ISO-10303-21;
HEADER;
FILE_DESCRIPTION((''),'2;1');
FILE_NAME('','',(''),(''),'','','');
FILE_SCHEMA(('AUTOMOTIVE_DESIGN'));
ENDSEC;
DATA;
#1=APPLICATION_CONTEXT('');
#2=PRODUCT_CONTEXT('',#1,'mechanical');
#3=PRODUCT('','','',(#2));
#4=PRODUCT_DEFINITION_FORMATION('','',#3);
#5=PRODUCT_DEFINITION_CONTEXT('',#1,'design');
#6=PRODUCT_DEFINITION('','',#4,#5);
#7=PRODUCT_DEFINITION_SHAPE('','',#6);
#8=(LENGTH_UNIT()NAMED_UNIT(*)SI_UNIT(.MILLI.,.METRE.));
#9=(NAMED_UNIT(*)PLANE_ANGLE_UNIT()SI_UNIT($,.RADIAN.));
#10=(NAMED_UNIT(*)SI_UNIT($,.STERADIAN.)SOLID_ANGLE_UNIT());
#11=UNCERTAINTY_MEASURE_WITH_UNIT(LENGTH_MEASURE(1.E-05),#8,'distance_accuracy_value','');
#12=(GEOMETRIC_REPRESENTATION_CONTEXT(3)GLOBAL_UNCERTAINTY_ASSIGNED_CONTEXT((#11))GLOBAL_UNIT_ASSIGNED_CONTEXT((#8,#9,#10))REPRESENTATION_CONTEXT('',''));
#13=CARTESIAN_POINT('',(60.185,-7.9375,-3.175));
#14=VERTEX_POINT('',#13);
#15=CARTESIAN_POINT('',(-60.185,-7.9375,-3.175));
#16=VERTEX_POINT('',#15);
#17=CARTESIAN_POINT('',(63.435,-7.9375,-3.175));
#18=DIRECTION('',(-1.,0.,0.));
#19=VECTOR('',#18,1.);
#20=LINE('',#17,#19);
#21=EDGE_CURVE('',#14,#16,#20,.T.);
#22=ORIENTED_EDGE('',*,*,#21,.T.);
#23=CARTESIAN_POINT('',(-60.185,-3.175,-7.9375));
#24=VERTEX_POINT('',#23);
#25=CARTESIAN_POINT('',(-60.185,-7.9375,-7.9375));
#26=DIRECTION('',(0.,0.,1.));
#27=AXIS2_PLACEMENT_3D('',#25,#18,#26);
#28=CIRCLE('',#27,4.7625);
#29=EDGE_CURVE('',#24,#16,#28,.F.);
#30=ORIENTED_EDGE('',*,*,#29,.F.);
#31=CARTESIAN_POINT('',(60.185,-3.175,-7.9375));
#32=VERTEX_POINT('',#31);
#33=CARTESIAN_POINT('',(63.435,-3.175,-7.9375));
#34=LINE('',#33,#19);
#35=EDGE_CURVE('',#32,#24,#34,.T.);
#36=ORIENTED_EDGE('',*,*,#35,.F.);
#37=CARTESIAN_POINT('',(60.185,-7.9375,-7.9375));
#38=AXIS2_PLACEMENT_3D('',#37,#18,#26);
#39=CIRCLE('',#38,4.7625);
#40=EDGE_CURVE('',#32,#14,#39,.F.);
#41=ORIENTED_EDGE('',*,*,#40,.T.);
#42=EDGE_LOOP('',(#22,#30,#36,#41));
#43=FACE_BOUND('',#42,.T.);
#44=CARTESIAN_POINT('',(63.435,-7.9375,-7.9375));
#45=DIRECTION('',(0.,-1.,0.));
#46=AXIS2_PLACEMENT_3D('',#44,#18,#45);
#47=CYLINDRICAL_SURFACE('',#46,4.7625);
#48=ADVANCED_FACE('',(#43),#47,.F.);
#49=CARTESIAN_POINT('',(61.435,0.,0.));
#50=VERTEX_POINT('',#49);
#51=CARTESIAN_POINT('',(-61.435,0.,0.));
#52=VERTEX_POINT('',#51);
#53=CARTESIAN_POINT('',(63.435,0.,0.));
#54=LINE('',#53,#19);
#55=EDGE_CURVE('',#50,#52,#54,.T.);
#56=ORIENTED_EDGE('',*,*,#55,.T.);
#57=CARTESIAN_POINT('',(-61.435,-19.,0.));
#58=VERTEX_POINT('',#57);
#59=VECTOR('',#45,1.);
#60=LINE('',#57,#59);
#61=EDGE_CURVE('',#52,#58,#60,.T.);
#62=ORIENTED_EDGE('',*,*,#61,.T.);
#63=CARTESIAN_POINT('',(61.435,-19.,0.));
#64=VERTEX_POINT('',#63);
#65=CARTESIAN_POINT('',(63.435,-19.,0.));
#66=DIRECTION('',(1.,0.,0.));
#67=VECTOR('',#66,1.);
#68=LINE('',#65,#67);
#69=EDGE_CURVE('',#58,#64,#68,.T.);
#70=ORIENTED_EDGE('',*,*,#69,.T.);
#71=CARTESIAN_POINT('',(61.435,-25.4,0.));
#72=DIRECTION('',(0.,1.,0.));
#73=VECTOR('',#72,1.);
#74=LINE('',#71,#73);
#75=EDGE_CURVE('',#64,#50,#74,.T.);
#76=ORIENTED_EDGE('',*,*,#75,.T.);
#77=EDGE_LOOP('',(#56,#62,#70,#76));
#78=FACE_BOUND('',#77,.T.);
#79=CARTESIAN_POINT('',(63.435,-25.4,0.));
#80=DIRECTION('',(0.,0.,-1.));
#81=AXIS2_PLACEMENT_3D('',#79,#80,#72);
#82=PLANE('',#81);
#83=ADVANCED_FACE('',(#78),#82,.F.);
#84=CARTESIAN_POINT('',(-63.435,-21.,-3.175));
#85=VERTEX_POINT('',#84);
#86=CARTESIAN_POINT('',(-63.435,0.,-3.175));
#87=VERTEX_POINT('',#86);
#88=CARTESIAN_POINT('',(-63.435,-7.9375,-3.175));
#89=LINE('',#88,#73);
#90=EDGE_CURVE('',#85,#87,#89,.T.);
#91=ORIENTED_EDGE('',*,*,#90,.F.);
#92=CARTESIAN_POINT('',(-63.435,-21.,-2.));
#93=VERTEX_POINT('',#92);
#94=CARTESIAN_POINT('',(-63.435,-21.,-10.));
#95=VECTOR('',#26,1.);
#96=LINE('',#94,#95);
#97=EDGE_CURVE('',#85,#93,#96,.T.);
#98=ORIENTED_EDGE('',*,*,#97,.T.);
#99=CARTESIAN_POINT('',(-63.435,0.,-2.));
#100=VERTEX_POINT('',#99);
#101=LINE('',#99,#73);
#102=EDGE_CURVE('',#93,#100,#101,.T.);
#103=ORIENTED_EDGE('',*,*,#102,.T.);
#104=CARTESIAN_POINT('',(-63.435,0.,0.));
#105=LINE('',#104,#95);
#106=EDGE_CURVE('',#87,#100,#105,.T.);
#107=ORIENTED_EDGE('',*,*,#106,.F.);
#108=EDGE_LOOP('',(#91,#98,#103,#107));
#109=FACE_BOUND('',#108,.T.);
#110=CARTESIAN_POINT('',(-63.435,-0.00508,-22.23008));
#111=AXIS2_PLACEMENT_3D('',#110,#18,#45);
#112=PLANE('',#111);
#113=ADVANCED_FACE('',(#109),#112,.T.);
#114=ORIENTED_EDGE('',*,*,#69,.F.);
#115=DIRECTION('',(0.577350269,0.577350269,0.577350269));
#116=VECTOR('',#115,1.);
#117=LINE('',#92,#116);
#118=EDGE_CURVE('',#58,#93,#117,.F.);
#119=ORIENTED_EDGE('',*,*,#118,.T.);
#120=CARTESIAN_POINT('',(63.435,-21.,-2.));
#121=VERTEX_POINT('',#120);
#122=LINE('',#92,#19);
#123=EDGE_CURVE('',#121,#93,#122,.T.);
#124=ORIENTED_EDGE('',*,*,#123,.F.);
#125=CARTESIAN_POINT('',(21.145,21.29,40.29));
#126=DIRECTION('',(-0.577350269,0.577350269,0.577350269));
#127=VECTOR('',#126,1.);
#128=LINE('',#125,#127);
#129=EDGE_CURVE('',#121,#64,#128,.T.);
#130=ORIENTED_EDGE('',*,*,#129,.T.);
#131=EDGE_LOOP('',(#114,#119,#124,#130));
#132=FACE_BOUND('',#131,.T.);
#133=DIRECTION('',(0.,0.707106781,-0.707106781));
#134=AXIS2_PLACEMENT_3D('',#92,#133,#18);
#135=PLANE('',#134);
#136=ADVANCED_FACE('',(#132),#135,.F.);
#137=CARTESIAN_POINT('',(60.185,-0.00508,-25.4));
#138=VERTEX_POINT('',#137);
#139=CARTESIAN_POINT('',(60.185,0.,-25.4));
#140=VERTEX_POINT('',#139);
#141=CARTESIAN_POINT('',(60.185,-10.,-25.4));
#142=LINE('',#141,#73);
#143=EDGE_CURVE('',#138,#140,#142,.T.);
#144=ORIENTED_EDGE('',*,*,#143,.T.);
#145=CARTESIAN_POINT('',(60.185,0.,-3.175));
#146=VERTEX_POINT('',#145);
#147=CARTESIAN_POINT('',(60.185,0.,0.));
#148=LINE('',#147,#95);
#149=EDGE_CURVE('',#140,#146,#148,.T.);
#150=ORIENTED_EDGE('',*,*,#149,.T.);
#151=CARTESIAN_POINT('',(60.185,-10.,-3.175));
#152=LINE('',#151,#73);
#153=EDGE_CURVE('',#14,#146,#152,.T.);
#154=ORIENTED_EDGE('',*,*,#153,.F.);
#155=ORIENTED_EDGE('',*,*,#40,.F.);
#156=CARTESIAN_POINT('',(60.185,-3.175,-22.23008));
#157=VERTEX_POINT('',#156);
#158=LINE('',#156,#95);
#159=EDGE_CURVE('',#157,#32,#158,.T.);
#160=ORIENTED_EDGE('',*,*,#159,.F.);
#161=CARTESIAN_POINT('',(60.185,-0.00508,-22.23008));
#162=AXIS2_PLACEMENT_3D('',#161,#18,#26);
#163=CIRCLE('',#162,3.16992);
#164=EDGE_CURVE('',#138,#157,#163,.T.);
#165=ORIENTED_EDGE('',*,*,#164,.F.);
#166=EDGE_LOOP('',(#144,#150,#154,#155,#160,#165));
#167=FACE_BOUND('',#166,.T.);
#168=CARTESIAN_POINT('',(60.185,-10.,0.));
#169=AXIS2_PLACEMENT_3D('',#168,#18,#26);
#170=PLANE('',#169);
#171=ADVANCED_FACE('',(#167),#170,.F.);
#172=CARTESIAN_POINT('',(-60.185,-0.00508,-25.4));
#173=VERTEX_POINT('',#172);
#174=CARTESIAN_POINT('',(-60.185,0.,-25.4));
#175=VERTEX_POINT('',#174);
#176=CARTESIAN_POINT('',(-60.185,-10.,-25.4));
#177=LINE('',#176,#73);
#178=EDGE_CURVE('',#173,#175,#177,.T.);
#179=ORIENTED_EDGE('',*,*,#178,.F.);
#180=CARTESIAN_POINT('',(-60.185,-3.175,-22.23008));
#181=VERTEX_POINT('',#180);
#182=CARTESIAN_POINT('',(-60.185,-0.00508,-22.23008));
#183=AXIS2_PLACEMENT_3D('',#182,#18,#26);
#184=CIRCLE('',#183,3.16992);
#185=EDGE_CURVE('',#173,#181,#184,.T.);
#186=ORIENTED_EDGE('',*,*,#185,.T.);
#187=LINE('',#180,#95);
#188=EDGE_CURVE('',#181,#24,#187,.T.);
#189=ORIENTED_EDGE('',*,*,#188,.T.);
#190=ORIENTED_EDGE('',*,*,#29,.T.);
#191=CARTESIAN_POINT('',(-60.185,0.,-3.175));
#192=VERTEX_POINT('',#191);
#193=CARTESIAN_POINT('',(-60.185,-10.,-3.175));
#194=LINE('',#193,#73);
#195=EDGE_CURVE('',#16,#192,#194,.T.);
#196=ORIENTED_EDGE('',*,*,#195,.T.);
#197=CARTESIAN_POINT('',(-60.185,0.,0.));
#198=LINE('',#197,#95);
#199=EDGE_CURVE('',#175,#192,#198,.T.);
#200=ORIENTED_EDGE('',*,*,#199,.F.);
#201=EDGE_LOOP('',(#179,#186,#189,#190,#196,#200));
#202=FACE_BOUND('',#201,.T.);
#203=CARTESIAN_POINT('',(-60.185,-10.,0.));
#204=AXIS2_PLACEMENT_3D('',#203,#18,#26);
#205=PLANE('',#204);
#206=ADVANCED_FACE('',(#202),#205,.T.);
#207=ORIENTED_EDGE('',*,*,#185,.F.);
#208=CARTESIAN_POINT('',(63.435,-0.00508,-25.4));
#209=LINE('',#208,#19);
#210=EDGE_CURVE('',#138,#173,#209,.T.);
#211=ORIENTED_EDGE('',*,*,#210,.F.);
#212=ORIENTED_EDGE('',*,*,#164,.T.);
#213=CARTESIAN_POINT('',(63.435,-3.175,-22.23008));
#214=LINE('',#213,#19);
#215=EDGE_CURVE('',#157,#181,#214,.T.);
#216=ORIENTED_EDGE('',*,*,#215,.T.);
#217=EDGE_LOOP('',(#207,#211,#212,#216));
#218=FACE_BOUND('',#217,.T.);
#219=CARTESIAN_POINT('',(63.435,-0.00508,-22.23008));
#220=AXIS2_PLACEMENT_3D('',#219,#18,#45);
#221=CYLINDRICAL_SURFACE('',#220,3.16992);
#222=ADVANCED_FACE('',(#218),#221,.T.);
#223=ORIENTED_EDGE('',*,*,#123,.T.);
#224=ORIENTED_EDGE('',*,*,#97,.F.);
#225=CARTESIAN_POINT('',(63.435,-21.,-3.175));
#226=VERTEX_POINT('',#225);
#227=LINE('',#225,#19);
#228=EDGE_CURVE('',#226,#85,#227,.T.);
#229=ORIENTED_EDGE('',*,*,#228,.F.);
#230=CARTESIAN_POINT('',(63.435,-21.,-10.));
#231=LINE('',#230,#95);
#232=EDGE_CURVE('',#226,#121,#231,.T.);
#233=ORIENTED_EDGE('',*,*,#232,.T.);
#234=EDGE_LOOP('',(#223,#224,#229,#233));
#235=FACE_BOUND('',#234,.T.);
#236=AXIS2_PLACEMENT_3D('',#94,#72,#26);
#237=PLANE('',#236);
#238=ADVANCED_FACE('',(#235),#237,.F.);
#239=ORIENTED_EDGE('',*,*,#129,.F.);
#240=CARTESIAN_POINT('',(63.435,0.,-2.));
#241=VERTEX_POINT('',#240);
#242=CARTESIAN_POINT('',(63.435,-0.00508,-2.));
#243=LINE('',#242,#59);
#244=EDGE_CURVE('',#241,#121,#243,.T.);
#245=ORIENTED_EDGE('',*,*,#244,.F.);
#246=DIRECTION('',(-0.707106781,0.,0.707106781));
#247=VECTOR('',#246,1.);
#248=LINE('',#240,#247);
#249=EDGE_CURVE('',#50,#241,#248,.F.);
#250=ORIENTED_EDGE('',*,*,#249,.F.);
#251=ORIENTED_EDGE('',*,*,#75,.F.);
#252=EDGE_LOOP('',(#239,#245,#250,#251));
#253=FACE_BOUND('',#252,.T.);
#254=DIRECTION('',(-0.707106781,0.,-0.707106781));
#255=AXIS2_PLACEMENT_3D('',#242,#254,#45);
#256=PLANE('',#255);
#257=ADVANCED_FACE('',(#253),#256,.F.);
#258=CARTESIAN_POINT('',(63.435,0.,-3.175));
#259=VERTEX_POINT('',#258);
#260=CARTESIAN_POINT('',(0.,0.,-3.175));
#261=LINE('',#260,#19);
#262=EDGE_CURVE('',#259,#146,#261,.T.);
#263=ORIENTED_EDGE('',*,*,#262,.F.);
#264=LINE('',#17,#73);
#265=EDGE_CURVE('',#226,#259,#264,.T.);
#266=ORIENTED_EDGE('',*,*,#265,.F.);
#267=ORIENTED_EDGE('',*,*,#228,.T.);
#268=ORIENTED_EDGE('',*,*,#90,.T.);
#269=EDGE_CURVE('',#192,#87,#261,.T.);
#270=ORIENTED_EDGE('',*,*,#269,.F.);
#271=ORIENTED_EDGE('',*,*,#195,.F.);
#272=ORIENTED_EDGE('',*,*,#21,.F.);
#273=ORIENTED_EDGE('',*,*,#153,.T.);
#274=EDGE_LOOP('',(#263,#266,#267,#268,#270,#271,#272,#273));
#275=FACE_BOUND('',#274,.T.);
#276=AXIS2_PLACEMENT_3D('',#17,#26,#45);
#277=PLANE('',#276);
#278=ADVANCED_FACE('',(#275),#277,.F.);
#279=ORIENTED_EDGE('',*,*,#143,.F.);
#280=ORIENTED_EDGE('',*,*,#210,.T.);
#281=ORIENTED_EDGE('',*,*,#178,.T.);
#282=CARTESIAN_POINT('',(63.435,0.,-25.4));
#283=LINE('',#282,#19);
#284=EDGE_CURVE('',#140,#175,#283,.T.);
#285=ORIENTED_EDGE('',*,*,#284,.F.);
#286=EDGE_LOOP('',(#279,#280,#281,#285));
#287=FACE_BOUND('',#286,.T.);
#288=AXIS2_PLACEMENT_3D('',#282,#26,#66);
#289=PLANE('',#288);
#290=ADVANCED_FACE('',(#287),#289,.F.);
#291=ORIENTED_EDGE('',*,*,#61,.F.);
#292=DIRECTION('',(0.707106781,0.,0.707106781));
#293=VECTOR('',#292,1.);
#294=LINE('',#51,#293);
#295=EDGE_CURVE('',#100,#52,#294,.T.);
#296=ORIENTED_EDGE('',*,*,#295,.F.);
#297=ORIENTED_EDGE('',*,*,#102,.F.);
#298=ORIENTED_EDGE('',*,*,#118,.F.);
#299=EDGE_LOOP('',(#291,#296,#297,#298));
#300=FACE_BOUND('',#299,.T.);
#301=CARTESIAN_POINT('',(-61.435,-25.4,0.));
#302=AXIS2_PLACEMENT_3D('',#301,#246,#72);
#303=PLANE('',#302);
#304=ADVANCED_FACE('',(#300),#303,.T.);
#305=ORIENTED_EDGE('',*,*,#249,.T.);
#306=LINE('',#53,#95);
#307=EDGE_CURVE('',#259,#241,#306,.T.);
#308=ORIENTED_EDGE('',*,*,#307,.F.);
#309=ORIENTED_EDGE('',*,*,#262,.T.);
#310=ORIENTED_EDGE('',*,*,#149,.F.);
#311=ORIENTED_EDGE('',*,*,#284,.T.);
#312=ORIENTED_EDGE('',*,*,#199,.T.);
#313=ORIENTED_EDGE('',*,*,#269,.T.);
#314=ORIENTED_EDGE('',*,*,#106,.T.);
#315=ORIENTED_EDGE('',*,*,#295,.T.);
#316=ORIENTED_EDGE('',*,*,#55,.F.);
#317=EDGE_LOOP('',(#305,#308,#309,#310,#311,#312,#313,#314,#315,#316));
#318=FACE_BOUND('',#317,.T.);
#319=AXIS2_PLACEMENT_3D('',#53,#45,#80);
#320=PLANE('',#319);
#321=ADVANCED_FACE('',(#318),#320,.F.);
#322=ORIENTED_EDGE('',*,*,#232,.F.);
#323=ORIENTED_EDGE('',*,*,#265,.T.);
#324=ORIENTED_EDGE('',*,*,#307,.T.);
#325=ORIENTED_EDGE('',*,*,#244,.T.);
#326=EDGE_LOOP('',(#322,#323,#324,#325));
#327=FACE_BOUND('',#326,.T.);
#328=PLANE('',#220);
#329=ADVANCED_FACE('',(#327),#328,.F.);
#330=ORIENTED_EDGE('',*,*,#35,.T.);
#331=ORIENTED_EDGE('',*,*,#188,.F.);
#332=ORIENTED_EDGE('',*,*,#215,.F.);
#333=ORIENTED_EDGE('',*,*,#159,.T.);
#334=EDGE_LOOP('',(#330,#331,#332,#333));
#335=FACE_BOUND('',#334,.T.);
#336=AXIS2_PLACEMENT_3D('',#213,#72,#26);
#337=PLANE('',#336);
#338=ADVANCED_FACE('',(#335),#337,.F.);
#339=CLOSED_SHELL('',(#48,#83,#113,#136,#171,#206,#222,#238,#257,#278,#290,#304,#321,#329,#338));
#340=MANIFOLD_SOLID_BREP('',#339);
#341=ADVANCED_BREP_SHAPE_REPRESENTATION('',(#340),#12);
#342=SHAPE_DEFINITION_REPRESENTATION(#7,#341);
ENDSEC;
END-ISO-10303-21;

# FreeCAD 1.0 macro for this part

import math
import FreeCAD as App
import Part
import Sketcher
Q = App.Units.Quantity


def edges_at(feature, points):
    """Names of the edges that pass closest to the given points."""
    edges = feature.Shape.Edges
    near = lambda p: min(range(len(edges)), key=lambda i: edges[i].distToShape(Part.Vertex(*p))[0])
    return sorted({f"Edge{near(p) + 1}" for p in points})

doc = App.newDocument("Part")
params = doc.addObject("Spreadsheet::Sheet", "Params")
for row, (alias, value) in enumerate([
    ("sketch1_width", "25.4 mm"),
    ("pad1_length", "126.87 mm"),
    ("sketch2_width", "3.25 mm"),
    ("pocket1_length", "10 mm"),
    ("sketch3_height", "4.4 mm"),
    ("sketch3_width", "126.87 mm"),
    ("pocket2_length", "10 mm"),
    ("chamfer_size", "2 mm"),
    ("chamfer2_size", "2 mm"),
], start=1):
    params.set(f"A{row}", alias)
    params.set(f"B{row}", "=" + value)
    params.setAlias(f"B{row}", alias)

body = doc.addObject("PartDesign::Body", "Body")

# Sketch on YZ plane
sketch1 = body.newObject("Sketcher::SketchObject", "Sketch")
sketch1.AttachmentSupport = (doc.getObject("YZ_Plane"), [""])
sketch1.MapMode = "FlatFace"
sketch1.AttachmentOffset = App.Placement(App.Vector(0, 0, -63.435), App.Rotation())
sketch1.addGeometry([
    Part.LineSegment(App.Vector(0, -25.4, 0), App.Vector(0, 0, 0)),  # 0
    Part.LineSegment(App.Vector(0, 0, 0), App.Vector(-25.4, 0, 0)),  # 1
    Part.LineSegment(App.Vector(-25.4, 0, 0), App.Vector(-25.4, -0.00508, 0)),  # 2
    Part.ArcOfCircle(Part.Circle(App.Vector(-22.23008, -0.00508, 0), App.Vector(0, 0, 1), 3.16992), math.radians(180), math.radians(270)),  # 3
    Part.LineSegment(App.Vector(-22.23008, -3.175, 0), App.Vector(-7.9375, -3.175, 0)),  # 4
    Part.ArcOfCircle(Part.Circle(App.Vector(-7.9375, -7.9375, 0), App.Vector(0, 0, 1), 4.7625), math.radians(0), math.radians(90)),  # 5
    Part.LineSegment(App.Vector(-3.175, -7.9375, 0), App.Vector(-3.175, -22.23008, 0)),  # 6
    Part.ArcOfCircle(Part.Circle(App.Vector(-0.00508, -22.23008, 0), App.Vector(0, 0, 1), 3.16992), math.radians(180), math.radians(270)),  # 7
    Part.LineSegment(App.Vector(-0.00508, -25.4, 0), App.Vector(0, -25.4, 0)),  # 8
], False)
sketch1.addConstraint([
    Sketcher.Constraint("Coincident", 0, 2, 1, 1),
    Sketcher.Constraint("Coincident", 1, 2, 2, 1),
    Sketcher.Constraint("Tangent", 2, 2, 3, 1),
    Sketcher.Constraint("Tangent", 3, 2, 4, 1),
    Sketcher.Constraint("Tangent", 4, 2, 5, 2),
    Sketcher.Constraint("Tangent", 5, 1, 6, 1),
    Sketcher.Constraint("Tangent", 6, 2, 7, 1),
    Sketcher.Constraint("Tangent", 7, 2, 8, 1),
    Sketcher.Constraint("Coincident", 8, 2, 0, 1),
    Sketcher.Constraint("Vertical", 0),
    Sketcher.Constraint("Horizontal", 1),
    Sketcher.Constraint("Horizontal", 4),
    Sketcher.Constraint("Vertical", 6),
    Sketcher.Constraint("Coincident", 0, 2, -1, 1),
    Sketcher.Constraint("Equal", 3, 7),
    Sketcher.Constraint("Horizontal", 3, 3, 2, 2),
    Sketcher.Constraint("Equal", 1, 0),
    Sketcher.Constraint("Equal", 8, 2),
    Sketcher.Constraint("Equal", 4, 6),
    Sketcher.Constraint("DistanceX", 1, 2, 1, 1, Q("25.4 mm")),
    Sketcher.Constraint("Radius", 5, Q("4.7625 mm")),
    Sketcher.Constraint("Radius", 3, Q("3.16992 mm")),
    Sketcher.Constraint("DistanceY", 3, 2, -1, 1, Q("3.175 mm")),
])
sketch1.setExpression("Constraints[19]", "Params.sketch1_width")
pad1 = body.newObject("PartDesign::Pad", "Pad")
pad1.Profile = sketch1
pad1.setExpression("Length", "Params.pad1_length")

# Sketch on XZ plane
sketch2 = body.newObject("Sketcher::SketchObject", "Sketch001")
sketch2.AttachmentSupport = (doc.getObject("XZ_Plane"), [""])
sketch2.MapMode = "FlatFace"
sketch2.addGeometry([
    Part.LineSegment(App.Vector(-63.435, -25.4, 0), App.Vector(-63.435, -3.175, 0)),  # 0
    Part.LineSegment(App.Vector(-63.435, -3.175, 0), App.Vector(-60.185, -3.175, 0)),  # 1
    Part.LineSegment(App.Vector(-60.185, -3.175, 0), App.Vector(-60.185, -25.4, 0)),  # 2
    Part.LineSegment(App.Vector(-60.185, -25.4, 0), App.Vector(-63.435, -25.4, 0)),  # 3
    Part.LineSegment(App.Vector(60.185, -25.4, 0), App.Vector(60.185, -3.175, 0)),  # 4
    Part.LineSegment(App.Vector(60.185, -3.175, 0), App.Vector(63.435, -3.175, 0)),  # 5
    Part.LineSegment(App.Vector(63.435, -3.175, 0), App.Vector(63.435, -25.4, 0)),  # 6
    Part.LineSegment(App.Vector(63.435, -25.4, 0), App.Vector(60.185, -25.4, 0)),  # 7
], False)
sketch2.addConstraint([
    Sketcher.Constraint("Coincident", 0, 2, 1, 1),
    Sketcher.Constraint("Coincident", 1, 2, 2, 1),
    Sketcher.Constraint("Coincident", 2, 2, 3, 1),
    Sketcher.Constraint("Coincident", 3, 2, 0, 1),
    Sketcher.Constraint("Coincident", 4, 2, 5, 1),
    Sketcher.Constraint("Coincident", 5, 2, 6, 1),
    Sketcher.Constraint("Coincident", 6, 2, 7, 1),
    Sketcher.Constraint("Coincident", 7, 2, 4, 1),
    Sketcher.Constraint("Vertical", 0),
    Sketcher.Constraint("Horizontal", 1),
    Sketcher.Constraint("Vertical", 2),
    Sketcher.Constraint("Horizontal", 3),
    Sketcher.Constraint("Vertical", 4),
    Sketcher.Constraint("Horizontal", 5),
    Sketcher.Constraint("Vertical", 6),
    Sketcher.Constraint("Horizontal", 7),
    Sketcher.Constraint("Symmetric", 1, 2, 4, 2, -2),
    Sketcher.Constraint("Symmetric", 3, 2, 6, 2, -2),
    Sketcher.Constraint("DistanceX", 1, 1, 1, 2, Q("3.25 mm")),
    Sketcher.Constraint("DistanceY", 2, 2, -1, 1, Q("25.4 mm")),
    Sketcher.Constraint("DistanceY", 0, 1, 0, 2, Q("22.225 mm")),
    Sketcher.Constraint("DistanceX", 1, 2, 4, 2, Q("120.37 mm")),
])
sketch2.setExpression("Constraints[18]", "Params.sketch2_width")
pocket1 = body.newObject("PartDesign::Pocket", "Pocket")
pocket1.Profile = sketch2
pocket1.setExpression("Length", "Params.pocket1_length")
pocket1.Reversed = True

# Sketch on XY plane
sketch3 = body.newObject("Sketcher::SketchObject", "Sketch002")
sketch3.AttachmentSupport = (doc.getObject("XY_Plane"), [""])
sketch3.MapMode = "FlatFace"
sketch3.addGeometry([
    Part.LineSegment(App.Vector(-63.435, -21, 0), App.Vector(-63.435, -25.4, 0)),
    Part.LineSegment(App.Vector(-63.435, -25.4, 0), App.Vector(63.435, -25.4, 0)),
    Part.LineSegment(App.Vector(63.435, -25.4, 0), App.Vector(63.435, -21, 0)),
    Part.LineSegment(App.Vector(63.435, -21, 0), App.Vector(-63.435, -21, 0)),
], False)
sketch3.addConstraint([
    Sketcher.Constraint("Coincident", 0, 2, 1, 1),
    Sketcher.Constraint("Coincident", 1, 2, 2, 1),
    Sketcher.Constraint("Coincident", 2, 2, 3, 1),
    Sketcher.Constraint("Coincident", 3, 2, 0, 1),
    Sketcher.Constraint("Vertical", 0),
    Sketcher.Constraint("Horizontal", 1),
    Sketcher.Constraint("Vertical", 2),
    Sketcher.Constraint("Horizontal", 3),
    Sketcher.Constraint("DistanceY", 0, 2, 0, 1, Q("4.4 mm")),
    Sketcher.Constraint("DistanceY", 2, 2, -1, 1, Q("21 mm")),
    Sketcher.Constraint("DistanceX", 1, 1, 1, 2, Q("126.87 mm")),
    Sketcher.Constraint("DistanceX", 0, 2, -1, 1, Q("63.435 mm")),
])
sketch3.setExpression("Constraints[8]", "Params.sketch3_height")
sketch3.setExpression("Constraints[10]", "Params.sketch3_width")
pocket2 = body.newObject("PartDesign::Pocket", "Pocket001")
pocket2.Profile = sketch3
pocket2.setExpression("Length", "Params.pocket2_length")
doc.recompute()

chamfer = body.newObject("PartDesign::Chamfer", "Chamfer")
chamfer.Base = (pocket2, edges_at(pocket2, [(0, -21, 0)]))
chamfer.setExpression("Size", "Params.chamfer_size")
doc.recompute()

chamfer2 = body.newObject("PartDesign::Chamfer", "Chamfer001")
chamfer2.Base = (chamfer, edges_at(chamfer, [(63.435, -9.5, 0), (-63.435, -9.5, 0)]))
chamfer2.setExpression("Size", "Params.chamfer2_size")

doc.recompute()
